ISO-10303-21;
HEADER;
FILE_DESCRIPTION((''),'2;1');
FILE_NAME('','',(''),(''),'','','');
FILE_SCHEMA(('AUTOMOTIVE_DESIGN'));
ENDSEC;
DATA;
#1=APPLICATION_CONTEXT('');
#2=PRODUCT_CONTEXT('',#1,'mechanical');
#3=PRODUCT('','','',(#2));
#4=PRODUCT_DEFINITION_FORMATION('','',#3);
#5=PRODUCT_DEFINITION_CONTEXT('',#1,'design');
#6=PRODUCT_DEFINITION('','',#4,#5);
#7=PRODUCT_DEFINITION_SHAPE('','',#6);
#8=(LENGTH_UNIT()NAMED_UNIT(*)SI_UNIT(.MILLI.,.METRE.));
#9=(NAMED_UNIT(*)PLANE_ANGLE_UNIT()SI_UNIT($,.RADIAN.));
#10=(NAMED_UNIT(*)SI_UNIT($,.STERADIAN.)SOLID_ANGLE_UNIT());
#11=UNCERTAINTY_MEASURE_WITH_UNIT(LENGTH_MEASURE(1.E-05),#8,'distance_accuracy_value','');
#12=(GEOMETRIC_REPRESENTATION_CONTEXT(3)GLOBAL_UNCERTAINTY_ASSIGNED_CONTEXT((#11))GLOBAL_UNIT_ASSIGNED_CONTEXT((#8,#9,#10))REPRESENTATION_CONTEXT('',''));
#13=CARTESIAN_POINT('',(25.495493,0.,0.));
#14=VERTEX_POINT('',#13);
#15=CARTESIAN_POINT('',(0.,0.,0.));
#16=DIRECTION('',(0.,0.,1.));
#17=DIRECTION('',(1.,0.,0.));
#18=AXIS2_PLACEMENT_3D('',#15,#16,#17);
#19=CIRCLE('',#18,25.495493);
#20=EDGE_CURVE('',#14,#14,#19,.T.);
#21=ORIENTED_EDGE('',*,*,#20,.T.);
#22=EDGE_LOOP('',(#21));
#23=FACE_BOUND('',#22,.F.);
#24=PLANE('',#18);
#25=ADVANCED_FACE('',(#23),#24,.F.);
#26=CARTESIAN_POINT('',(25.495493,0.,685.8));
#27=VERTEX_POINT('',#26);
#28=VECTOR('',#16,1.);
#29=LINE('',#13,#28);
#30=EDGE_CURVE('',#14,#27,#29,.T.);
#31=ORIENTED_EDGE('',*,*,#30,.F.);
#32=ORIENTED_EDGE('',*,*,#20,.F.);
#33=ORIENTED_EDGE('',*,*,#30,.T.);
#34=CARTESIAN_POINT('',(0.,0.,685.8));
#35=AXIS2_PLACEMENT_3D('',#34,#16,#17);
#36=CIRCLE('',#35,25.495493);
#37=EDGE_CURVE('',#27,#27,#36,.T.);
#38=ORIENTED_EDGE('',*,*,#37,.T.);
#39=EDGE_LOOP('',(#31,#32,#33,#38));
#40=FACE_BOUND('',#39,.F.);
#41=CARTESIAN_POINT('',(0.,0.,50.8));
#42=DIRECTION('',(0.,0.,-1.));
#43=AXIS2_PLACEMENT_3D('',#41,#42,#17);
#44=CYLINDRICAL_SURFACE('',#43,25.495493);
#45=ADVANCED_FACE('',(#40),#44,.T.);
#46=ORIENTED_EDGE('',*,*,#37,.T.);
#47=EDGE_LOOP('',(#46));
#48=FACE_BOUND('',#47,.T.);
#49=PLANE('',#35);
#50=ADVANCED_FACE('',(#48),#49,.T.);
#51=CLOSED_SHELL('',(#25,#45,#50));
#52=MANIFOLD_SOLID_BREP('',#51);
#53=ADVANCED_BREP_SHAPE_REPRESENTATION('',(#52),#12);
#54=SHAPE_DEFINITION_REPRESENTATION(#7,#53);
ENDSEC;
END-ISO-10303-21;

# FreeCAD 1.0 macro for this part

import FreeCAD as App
import Part
import Sketcher

V = App.Vector
Q = App.Units.Quantity

doc = App.newDocument("Part")
body = doc.addObject("PartDesign::Body", "Body")

# Sketch on XY plane
sketch1 = doc.addObject("Sketcher::SketchObject", "Sketch")
body.addObject(sketch1)
sketch1.AttachmentSupport = (doc.XY_Plane, [""])
sketch1.MapMode = "FlatFace"
sketch1.addGeometry(Part.Circle(V(0, 0, 0), V(0, 0, 1), 25), False)
sketch1.addConstraint([
    Sketcher.Constraint("Coincident", 0, 3, -1, 1),
    Sketcher.Constraint("Diameter", 0, Q("50.990986 mm")),
])
pad1 = doc.addObject("PartDesign::Pad", "Pad")
body.addObject(pad1)
pad1.Profile = sketch1
pad1.Length = Q("2 in")

# Sketch on XY plane
sketch2 = doc.addObject("Sketcher::SketchObject", "Sketch001")
body.addObject(sketch2)
sketch2.AttachmentSupport = (doc.XY_Plane, [""])
sketch2.MapMode = "FlatFace"
sketch2.AttachmentOffset = App.Placement(V(0, 0, 2 * 25.4), App.Rotation())
sketch2.addGeometry(Part.Circle(V(0, 0, 0), V(0, 0, 1), 25), False)
sketch2.addConstraint([
    Sketcher.Constraint("Coincident", 0, 3, -1, 1),
    Sketcher.Constraint("Diameter", 0, Q("50.990986 mm")),
])
pad2 = doc.addObject("PartDesign::Pad", "Pad001")
body.addObject(pad2)
pad2.Profile = sketch2
pad2.Length = Q("25 in")

doc.recompute()
